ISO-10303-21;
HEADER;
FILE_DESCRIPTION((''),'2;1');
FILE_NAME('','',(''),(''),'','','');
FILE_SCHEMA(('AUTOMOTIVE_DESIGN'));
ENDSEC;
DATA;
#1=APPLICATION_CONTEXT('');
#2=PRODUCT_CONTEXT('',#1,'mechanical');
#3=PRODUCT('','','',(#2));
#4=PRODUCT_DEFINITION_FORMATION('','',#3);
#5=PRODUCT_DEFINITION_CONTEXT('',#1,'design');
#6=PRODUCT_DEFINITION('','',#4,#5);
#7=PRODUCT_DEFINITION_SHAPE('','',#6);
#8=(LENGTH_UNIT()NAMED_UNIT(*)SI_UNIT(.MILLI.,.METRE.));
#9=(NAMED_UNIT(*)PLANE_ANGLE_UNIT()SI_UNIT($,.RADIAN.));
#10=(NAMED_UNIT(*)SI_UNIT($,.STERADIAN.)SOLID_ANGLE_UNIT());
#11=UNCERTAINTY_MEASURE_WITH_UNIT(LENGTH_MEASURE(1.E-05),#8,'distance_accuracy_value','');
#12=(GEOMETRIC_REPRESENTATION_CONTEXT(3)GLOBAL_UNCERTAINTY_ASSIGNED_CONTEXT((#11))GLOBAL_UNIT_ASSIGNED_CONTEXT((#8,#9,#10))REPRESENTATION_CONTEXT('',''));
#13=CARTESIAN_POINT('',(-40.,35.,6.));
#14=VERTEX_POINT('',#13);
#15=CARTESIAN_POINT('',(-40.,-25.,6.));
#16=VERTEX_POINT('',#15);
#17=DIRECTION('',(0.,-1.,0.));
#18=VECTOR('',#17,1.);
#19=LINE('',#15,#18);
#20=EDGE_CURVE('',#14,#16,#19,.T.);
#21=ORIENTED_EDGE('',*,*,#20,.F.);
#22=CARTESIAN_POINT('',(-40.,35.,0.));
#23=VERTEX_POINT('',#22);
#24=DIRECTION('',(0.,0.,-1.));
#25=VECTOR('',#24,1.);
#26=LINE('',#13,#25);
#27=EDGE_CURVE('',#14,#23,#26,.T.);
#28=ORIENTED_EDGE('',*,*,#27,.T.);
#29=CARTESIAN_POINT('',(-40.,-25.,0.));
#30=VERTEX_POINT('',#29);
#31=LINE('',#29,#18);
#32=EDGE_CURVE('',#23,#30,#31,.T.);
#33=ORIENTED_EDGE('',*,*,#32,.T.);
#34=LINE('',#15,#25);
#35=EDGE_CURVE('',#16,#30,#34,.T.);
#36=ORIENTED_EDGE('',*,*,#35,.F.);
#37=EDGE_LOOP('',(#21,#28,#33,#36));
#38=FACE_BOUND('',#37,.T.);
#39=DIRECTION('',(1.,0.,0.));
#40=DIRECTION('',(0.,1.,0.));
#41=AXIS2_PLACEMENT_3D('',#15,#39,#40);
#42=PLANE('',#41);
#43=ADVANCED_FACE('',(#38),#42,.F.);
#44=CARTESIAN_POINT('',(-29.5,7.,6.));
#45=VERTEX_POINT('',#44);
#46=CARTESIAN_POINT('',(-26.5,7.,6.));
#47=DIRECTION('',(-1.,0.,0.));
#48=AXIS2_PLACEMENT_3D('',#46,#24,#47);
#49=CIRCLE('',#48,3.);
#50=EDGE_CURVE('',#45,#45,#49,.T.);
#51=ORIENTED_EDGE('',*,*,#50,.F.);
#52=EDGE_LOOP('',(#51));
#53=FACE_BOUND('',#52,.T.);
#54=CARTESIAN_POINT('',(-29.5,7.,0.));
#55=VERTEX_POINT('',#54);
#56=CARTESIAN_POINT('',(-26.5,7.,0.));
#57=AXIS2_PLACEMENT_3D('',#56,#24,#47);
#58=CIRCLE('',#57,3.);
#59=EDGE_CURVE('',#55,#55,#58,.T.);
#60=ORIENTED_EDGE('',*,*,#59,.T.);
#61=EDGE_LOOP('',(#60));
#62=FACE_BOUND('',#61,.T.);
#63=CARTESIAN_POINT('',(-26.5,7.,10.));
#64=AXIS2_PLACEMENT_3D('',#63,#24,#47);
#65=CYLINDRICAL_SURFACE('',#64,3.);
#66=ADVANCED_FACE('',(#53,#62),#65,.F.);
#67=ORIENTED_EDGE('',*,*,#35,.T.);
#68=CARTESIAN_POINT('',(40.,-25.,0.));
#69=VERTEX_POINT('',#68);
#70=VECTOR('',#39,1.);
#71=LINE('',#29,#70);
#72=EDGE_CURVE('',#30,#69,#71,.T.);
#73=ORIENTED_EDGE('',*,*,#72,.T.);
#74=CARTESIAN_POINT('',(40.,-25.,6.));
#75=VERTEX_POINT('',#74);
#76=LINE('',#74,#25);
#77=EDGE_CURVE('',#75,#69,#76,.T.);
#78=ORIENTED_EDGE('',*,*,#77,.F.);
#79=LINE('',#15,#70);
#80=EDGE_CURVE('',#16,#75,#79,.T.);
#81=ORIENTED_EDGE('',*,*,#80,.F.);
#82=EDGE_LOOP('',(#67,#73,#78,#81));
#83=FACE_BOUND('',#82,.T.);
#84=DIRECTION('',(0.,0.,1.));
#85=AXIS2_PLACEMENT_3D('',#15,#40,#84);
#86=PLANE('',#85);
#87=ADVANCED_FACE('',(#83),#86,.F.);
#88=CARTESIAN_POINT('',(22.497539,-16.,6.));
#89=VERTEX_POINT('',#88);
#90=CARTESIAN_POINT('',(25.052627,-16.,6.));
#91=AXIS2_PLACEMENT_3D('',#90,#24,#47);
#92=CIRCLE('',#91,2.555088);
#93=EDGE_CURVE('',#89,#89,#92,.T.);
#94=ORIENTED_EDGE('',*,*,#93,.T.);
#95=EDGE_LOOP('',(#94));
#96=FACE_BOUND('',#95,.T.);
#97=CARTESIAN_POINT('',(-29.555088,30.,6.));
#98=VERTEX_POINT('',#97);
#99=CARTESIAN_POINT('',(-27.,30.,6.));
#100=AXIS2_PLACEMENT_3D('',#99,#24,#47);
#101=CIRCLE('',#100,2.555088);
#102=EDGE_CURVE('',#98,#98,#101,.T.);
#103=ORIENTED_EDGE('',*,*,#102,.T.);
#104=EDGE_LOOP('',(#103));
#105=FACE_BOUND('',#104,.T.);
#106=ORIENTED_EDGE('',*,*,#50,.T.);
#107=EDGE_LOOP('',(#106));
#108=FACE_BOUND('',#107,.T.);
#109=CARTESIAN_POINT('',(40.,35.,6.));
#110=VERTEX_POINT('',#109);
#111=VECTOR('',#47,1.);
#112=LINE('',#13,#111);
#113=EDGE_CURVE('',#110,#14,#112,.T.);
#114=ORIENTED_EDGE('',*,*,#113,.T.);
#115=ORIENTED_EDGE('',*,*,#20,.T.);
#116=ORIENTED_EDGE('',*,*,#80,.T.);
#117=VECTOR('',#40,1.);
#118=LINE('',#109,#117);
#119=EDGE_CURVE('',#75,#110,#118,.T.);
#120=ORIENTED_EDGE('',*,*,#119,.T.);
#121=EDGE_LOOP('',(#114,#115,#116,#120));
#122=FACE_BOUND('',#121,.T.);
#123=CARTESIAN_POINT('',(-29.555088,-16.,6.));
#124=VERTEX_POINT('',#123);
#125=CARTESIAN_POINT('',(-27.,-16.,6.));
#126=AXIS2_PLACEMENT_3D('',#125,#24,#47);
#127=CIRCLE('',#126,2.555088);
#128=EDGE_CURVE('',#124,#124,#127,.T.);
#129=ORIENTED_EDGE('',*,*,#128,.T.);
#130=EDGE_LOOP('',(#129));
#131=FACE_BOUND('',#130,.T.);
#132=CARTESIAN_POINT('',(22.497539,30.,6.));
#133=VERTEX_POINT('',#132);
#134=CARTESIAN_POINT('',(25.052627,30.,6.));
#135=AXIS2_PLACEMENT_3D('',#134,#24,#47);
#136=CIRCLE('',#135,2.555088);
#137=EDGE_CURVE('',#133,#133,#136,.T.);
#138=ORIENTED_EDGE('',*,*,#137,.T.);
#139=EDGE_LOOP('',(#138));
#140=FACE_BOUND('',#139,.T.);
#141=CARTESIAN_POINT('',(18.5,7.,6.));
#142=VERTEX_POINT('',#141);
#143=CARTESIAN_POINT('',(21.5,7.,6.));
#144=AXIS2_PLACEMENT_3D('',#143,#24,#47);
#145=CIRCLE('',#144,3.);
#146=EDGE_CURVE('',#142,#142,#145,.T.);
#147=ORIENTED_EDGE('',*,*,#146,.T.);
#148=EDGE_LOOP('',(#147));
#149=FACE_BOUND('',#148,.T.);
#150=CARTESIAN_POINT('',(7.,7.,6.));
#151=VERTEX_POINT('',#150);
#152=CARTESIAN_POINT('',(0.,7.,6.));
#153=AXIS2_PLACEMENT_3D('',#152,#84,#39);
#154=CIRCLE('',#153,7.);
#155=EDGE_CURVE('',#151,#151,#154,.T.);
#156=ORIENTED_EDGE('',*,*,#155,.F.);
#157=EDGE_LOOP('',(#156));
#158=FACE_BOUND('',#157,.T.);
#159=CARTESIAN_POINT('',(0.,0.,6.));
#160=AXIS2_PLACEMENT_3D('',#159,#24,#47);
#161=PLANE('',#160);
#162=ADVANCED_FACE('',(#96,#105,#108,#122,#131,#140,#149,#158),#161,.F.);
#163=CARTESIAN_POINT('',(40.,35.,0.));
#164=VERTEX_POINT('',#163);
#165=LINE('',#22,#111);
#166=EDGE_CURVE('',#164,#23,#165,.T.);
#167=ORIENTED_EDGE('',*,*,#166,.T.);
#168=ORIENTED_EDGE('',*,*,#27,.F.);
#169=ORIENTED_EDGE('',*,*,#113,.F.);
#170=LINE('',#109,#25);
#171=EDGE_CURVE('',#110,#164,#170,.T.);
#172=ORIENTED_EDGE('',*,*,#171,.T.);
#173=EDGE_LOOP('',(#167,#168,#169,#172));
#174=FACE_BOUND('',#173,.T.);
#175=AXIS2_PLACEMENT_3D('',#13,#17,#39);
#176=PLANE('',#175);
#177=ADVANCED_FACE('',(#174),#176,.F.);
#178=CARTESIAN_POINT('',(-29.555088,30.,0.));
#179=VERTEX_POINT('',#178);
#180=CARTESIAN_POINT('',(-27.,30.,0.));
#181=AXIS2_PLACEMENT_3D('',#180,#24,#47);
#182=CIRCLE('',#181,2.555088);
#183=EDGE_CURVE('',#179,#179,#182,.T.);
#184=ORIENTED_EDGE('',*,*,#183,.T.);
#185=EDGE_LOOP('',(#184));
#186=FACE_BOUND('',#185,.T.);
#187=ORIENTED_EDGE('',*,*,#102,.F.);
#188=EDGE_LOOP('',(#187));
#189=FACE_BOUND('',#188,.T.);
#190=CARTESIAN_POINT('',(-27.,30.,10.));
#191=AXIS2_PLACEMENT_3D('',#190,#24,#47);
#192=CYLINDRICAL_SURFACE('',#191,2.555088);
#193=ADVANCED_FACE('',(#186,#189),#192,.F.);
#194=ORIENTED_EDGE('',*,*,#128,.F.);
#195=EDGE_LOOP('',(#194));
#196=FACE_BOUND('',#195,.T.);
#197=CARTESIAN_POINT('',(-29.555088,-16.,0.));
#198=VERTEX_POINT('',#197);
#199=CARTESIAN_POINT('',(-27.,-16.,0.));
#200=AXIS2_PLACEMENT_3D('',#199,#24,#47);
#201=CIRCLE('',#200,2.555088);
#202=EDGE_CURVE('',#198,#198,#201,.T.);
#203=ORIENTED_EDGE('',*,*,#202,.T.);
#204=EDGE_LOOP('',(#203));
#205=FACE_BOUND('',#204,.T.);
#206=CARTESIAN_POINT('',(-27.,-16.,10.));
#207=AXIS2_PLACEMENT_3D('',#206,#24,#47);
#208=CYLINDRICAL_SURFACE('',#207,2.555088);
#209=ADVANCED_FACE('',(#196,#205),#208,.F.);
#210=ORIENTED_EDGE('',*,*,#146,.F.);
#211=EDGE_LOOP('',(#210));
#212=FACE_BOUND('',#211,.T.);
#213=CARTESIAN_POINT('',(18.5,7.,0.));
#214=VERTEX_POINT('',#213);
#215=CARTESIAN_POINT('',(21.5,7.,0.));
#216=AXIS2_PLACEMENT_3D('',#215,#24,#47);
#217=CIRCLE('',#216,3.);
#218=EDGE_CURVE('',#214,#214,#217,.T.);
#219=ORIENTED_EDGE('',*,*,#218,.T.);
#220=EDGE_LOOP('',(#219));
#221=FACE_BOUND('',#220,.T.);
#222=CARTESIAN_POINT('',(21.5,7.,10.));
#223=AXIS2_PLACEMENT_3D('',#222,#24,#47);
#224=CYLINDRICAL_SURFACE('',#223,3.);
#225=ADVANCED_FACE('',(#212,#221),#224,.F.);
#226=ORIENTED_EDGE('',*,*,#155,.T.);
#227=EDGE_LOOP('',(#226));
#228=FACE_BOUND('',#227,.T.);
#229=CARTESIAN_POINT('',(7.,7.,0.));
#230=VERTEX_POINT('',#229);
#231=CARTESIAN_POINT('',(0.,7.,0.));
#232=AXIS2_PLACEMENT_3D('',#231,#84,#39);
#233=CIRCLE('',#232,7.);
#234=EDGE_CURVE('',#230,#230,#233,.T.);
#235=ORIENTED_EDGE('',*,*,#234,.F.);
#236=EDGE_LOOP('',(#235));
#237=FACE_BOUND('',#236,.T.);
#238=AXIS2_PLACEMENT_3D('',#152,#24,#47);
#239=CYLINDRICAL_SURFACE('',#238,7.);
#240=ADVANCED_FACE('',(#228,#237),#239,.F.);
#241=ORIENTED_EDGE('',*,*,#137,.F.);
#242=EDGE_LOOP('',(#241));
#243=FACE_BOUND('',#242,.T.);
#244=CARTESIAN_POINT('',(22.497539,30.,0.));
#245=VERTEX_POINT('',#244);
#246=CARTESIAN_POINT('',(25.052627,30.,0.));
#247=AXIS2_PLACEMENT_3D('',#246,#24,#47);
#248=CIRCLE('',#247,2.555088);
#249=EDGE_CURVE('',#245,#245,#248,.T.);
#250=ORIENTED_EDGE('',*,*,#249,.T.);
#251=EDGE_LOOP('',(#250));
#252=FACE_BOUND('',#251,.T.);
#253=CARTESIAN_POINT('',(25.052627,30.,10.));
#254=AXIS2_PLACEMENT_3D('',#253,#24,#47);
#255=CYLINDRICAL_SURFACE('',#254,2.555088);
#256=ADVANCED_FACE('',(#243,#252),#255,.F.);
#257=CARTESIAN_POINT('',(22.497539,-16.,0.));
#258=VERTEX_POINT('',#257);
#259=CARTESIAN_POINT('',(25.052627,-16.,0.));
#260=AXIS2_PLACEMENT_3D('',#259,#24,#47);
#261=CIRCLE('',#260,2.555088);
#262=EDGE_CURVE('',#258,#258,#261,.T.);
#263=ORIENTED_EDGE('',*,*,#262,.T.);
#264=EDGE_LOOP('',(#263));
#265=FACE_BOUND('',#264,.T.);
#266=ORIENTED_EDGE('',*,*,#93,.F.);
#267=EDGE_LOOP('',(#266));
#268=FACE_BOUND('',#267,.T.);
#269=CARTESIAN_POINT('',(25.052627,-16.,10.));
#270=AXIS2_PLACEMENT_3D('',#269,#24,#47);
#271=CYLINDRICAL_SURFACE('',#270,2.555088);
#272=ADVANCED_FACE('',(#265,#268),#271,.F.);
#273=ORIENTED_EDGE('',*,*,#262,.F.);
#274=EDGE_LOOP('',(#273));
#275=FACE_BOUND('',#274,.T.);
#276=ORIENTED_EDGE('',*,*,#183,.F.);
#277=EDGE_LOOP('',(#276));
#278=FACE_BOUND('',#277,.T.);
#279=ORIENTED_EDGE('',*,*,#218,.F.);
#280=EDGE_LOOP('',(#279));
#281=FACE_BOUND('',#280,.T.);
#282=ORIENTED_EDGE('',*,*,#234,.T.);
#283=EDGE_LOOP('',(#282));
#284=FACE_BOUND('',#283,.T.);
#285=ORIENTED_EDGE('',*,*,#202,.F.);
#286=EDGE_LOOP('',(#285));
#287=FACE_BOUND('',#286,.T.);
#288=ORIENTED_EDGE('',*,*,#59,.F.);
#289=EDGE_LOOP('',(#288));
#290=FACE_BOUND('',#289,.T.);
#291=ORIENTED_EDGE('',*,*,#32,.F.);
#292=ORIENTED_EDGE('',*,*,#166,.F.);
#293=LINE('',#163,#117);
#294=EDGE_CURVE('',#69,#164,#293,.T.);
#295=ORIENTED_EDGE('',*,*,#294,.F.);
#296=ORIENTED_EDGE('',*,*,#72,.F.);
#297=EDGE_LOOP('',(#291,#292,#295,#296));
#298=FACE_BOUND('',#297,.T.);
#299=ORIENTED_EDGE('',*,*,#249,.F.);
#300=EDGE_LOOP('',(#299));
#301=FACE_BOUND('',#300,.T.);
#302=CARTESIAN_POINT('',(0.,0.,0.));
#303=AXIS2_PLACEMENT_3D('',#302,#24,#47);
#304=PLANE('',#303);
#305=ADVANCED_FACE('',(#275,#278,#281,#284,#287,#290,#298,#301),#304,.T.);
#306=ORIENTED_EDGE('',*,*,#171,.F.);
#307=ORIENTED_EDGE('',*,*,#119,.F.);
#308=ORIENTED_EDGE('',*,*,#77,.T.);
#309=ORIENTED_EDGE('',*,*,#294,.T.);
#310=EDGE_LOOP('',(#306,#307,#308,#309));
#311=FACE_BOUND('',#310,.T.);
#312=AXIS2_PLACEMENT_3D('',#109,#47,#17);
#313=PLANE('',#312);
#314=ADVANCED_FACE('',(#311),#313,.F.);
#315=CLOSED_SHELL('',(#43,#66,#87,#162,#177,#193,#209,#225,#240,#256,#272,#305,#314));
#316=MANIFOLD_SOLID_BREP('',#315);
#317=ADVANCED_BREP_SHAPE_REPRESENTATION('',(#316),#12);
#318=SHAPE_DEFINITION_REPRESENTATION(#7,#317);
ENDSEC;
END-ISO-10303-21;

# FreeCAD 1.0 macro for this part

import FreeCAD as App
import Part
import Sketcher

V = App.Vector
Q = App.Units.Quantity


def add_polygon(sketch, points):
    """Adds a closed chain of lines whose ends are joined by coincident constraints."""
    first, n = sketch.GeometryCount, len(points)
    for a, b in zip(points, points[1:] + points[:1]):
        sketch.addGeometry(Part.LineSegment(App.Vector(*a, 0), App.Vector(*b, 0)), False)
    for i in range(n):
        sketch.addConstraint(Sketcher.Constraint("Coincident", first + i, 2, first + (i + 1) % n, 1))

doc = App.newDocument("Part")
body = doc.addObject("PartDesign::Body", "Body")

# Sketch on XY plane
sketch1 = body.newObject("Sketcher::SketchObject", "Sketch")
sketch1.AttachmentSupport = (doc.getObject("XY_Plane"), [""])
sketch1.MapMode = "FlatFace"
add_polygon(sketch1, [(-40, 35), (-40, -25), (40, -25), (40, 35)])  # lines 0-3
sketch1.addGeometry(Part.Circle(V(0, 7, 0), V(0, 0, 1), 7), False)  # 4
sketch1.addConstraint([
    Sketcher.Constraint("Vertical", 0),
    Sketcher.Constraint("Horizontal", 1),
    Sketcher.Constraint("Vertical", 2),
    Sketcher.Constraint("Horizontal", 3),
    Sketcher.Constraint("PointOnObject", 4, 3, -2),
    Sketcher.Constraint("Diameter", 4, Q("14 mm")),
    Sketcher.Constraint("DistanceX", 1, 1, 1, 2, Q("80 mm")),
    Sketcher.Constraint("DistanceY", 0, 2, 0, 1, Q("60 mm")),
    Sketcher.Constraint("DistanceY", -1, 1, 4, 3, Q("7 mm")),
    Sketcher.Constraint("DistanceX", 0, 2, -1, 1, Q("40 mm")),
    Sketcher.Constraint("DistanceY", 0, 2, -1, 1, Q("25 mm")),
])
pad1 = body.newObject("PartDesign::Pad", "Pad")
pad1.Profile = sketch1
pad1.Length = 6

# Sketch on XY plane
sketch2 = body.newObject("Sketcher::SketchObject", "Sketch001")
sketch2.AttachmentSupport = (doc.getObject("XY_Plane"), [""])
sketch2.MapMode = "FlatFace"
sketch2.addGeometry([
    Part.Circle(V(21.5, 7, 0), V(0, 0, 1), 3),  # 0
    Part.Circle(V(-26.5, 7, 0), V(0, 0, 1), 3),  # 1
    Part.Circle(V(-27, 30, 0), V(0, 0, 1), 2.555088),  # 2
    Part.Circle(V(-27, -16, 0), V(0, 0, 1), 2.555088),  # 3
    Part.Circle(V(25.052627, -16, 0), V(0, 0, 1), 2.555088),  # 4
    Part.Circle(V(25.052627, 30, 0), V(0, 0, 1), 2.555088),  # 5
], False)
sketch2.addConstraint([
    Sketcher.Constraint("Equal", 0, 1),
    Sketcher.Constraint("Equal", 2, 3),
    Sketcher.Constraint("Equal", 3, 4),
    Sketcher.Constraint("Equal", 4, 5),
    Sketcher.Constraint("Horizontal", 0, 3, 1, 3),
    Sketcher.Constraint("Horizontal", 3, 3, 4, 3),
    Sketcher.Constraint("Horizontal", 2, 3, 5, 3),
    Sketcher.Constraint("Vertical", 2, 3, 3, 3),
    Sketcher.Constraint("Vertical", 4, 3, 5, 3),
    Sketcher.Constraint("Diameter", 0, Q("6 mm")),
    Sketcher.Constraint("DistanceY", -1, 1, 0, 3, Q("7 mm")),
    Sketcher.Constraint("DistanceX", 2, 3, -1, 1, Q("27 mm")),
    Sketcher.Constraint("DistanceY", -1, 1, 2, 3, Q("30 mm")),
    Sketcher.Constraint("DistanceY", 3, 3, -1, 1, Q("16 mm")),
    Sketcher.Constraint("DistanceX", 1, 3, 0, 3, Q("48 mm")),
    Sketcher.Constraint("DistanceX", -1, 1, 0, 3, Q("21.5 mm")),
    Sketcher.Constraint("Diameter", 2, Q("5.110175 mm")),
    Sketcher.Constraint("DistanceX", -1, 1, 4, 3, Q("25.052627 mm")),
])
pocket1 = body.newObject("PartDesign::Pocket", "Pocket")
pocket1.Profile = sketch2
pocket1.Length = 10
pocket1.Reversed = True

doc.recompute()
